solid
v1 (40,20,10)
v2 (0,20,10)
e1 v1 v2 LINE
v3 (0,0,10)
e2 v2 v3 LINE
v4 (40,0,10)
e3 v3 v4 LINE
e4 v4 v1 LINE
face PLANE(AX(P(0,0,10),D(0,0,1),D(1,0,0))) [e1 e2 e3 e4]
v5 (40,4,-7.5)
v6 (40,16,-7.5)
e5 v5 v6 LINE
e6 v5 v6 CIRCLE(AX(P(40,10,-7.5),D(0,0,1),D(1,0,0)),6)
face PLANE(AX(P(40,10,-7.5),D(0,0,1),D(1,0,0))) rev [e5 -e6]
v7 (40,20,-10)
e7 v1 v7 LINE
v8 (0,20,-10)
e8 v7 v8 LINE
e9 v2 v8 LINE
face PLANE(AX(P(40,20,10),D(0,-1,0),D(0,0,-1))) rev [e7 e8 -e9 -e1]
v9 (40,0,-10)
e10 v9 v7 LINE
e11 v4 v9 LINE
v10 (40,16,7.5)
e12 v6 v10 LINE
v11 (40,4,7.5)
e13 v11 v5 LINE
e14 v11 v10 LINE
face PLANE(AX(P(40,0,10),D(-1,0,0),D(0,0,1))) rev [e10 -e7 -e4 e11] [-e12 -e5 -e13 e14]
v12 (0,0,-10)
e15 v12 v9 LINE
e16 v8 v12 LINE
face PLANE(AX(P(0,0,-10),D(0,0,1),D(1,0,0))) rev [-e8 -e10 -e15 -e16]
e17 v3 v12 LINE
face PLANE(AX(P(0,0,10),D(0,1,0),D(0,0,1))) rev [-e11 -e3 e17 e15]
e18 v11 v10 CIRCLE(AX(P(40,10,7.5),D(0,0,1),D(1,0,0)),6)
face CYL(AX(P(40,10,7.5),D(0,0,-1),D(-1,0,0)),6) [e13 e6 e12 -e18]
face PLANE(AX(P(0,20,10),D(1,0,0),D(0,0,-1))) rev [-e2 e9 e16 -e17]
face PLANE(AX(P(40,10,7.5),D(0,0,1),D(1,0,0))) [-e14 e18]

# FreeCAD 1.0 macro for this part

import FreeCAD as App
import Part
import Sketcher

V = App.Vector


def add_polygon(sketch, points):
    """Adds a closed chain of lines whose ends are joined by coincident constraints."""
    first, n = sketch.GeometryCount, len(points)
    for a, b in zip(points, points[1:] + points[:1]):
        sketch.addGeometry(Part.LineSegment(App.Vector(*a, 0), App.Vector(*b, 0)), False)
    for i in range(n):
        sketch.addConstraint(Sketcher.Constraint("Coincident", first + i, 2, first + (i + 1) % n, 1))

doc = App.newDocument("Part")
body = doc.addObject("PartDesign::Body", "Body")

# Sketch on XY plane
sketch1 = body.newObject("Sketcher::SketchObject", "Sketch")
sketch1.AttachmentSupport = (doc.getObject("XY_Plane"), [""])
sketch1.MapMode = "FlatFace"
add_polygon(sketch1, [(0, 20), (0, 0), (40, 0), (40, 20)])  # lines 0-3
sketch1.addConstraint([
    Sketcher.Constraint("Vertical", 0),
    Sketcher.Constraint("Horizontal", 1),
    Sketcher.Constraint("Vertical", 2),
    Sketcher.Constraint("Horizontal", 3),
    Sketcher.Constraint("Coincident", 0, 2, -1, 1),
    Sketcher.Constraint("DistanceX", 1, 1, 1, 2, 40.0),
    Sketcher.Constraint("DistanceY", 0, 2, 0, 1, 20.0),
])
pad1 = body.newObject("PartDesign::Pad", "Pad")
pad1.Profile = sketch1
pad1.Length = 20
pad1.Midplane = True

# Sketch on XY plane
sketch2 = body.newObject("Sketcher::SketchObject", "Sketch001")
sketch2.AttachmentSupport = (doc.getObject("XY_Plane"), [""])
sketch2.MapMode = "FlatFace"
sketch2.addGeometry(Part.Circle(V(40, 10, 0), V(0, 0, 1), 6), False)
sketch2.addConstraint([
    Sketcher.Constraint("Diameter", 0, 12.0),
    Sketcher.Constraint("DistanceX", -1, 1, 0, 3, 40.0),
    Sketcher.Constraint("DistanceY", -1, 1, 0, 3, 10.0),
])
pad2 = body.newObject("PartDesign::Pad", "Pad001")
pad2.Profile = sketch2
pad2.Length = 15
pad2.Midplane = True

doc.recompute()
